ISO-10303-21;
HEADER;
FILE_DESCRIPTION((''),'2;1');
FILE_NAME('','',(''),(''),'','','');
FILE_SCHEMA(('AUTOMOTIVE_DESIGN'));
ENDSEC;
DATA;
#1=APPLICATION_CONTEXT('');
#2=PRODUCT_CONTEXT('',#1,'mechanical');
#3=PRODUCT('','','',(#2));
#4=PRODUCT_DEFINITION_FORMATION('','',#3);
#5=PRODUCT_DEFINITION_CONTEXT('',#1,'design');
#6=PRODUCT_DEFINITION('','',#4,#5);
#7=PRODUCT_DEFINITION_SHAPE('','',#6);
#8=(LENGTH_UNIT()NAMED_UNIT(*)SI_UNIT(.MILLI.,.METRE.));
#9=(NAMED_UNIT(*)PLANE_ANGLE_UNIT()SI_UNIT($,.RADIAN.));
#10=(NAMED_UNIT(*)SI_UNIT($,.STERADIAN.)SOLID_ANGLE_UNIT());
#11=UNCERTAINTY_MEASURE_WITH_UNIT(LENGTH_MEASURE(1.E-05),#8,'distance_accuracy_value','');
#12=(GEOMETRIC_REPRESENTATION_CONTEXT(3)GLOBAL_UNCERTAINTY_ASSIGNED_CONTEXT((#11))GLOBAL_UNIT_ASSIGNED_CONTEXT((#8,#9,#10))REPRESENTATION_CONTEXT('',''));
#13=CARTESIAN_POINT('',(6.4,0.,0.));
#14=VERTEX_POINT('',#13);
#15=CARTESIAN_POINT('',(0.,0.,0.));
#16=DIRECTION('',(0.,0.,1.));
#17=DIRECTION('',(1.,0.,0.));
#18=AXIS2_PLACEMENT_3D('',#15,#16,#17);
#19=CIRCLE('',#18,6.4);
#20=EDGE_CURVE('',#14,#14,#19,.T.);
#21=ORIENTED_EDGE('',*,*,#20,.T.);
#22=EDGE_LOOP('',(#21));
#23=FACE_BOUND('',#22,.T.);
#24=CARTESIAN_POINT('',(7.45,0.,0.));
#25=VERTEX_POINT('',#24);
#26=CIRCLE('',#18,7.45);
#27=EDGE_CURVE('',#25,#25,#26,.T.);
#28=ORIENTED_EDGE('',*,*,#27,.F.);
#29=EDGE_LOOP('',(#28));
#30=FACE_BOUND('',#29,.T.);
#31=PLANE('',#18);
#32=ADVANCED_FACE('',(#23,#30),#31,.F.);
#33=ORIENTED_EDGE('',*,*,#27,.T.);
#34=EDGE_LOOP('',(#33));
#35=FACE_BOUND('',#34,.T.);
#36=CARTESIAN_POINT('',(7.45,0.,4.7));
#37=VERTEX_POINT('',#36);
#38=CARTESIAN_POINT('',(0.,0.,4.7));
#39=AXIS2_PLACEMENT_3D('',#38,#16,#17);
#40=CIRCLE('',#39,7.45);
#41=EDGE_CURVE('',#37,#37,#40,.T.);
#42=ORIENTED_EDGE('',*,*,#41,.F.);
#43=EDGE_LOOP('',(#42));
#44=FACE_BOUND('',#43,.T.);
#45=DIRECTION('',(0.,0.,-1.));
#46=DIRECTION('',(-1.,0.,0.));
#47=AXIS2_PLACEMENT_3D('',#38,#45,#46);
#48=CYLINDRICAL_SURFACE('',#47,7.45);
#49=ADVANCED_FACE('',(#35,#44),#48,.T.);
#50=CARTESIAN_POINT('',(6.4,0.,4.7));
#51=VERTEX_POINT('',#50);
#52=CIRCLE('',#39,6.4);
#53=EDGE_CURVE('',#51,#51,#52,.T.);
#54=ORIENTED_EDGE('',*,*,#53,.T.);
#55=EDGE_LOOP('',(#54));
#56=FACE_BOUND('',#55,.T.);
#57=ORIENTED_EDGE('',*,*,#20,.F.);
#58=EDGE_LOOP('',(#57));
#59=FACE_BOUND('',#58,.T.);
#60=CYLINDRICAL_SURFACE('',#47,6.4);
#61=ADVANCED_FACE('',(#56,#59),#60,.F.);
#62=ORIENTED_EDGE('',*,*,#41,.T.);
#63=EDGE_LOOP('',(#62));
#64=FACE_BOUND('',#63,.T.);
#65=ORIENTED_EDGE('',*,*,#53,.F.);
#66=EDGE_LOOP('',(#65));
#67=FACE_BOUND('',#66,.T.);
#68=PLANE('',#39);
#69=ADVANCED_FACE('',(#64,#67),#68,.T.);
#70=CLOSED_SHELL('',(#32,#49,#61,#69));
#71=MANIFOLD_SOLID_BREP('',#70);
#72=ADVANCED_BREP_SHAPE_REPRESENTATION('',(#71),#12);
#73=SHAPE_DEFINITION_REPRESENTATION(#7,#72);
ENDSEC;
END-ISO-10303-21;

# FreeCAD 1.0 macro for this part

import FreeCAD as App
import Part
import Sketcher

doc = App.newDocument("Part")
body = doc.addObject("PartDesign::Body", "Body")

sketch1 = body.newObject("Sketcher::SketchObject", "Sketch")
sketch1.AttachmentSupport = (doc.getObject("XY_Plane"), [""])
sketch1.MapMode = "FlatFace"
sketch1.addGeometry([
    Part.Circle(App.Vector(0, 0, 0), App.Vector(0, 0, 1), 7.45),
    Part.Circle(App.Vector(0, 0, 0), App.Vector(0, 0, 1), 6.4),
], False)
sketch1.addConstraint([
    Sketcher.Constraint("Coincident", 0, 3, -1, 1),
    Sketcher.Constraint("Coincident", 1, 3, -1, 1),
    Sketcher.Constraint("Diameter", 0, 14.9),
    Sketcher.Constraint("Diameter", 1, 12.8),
])
pad1 = body.newObject("PartDesign::Pad", "Pad")
pad1.Profile = sketch1
pad1.Length = 4.7

doc.recompute()
